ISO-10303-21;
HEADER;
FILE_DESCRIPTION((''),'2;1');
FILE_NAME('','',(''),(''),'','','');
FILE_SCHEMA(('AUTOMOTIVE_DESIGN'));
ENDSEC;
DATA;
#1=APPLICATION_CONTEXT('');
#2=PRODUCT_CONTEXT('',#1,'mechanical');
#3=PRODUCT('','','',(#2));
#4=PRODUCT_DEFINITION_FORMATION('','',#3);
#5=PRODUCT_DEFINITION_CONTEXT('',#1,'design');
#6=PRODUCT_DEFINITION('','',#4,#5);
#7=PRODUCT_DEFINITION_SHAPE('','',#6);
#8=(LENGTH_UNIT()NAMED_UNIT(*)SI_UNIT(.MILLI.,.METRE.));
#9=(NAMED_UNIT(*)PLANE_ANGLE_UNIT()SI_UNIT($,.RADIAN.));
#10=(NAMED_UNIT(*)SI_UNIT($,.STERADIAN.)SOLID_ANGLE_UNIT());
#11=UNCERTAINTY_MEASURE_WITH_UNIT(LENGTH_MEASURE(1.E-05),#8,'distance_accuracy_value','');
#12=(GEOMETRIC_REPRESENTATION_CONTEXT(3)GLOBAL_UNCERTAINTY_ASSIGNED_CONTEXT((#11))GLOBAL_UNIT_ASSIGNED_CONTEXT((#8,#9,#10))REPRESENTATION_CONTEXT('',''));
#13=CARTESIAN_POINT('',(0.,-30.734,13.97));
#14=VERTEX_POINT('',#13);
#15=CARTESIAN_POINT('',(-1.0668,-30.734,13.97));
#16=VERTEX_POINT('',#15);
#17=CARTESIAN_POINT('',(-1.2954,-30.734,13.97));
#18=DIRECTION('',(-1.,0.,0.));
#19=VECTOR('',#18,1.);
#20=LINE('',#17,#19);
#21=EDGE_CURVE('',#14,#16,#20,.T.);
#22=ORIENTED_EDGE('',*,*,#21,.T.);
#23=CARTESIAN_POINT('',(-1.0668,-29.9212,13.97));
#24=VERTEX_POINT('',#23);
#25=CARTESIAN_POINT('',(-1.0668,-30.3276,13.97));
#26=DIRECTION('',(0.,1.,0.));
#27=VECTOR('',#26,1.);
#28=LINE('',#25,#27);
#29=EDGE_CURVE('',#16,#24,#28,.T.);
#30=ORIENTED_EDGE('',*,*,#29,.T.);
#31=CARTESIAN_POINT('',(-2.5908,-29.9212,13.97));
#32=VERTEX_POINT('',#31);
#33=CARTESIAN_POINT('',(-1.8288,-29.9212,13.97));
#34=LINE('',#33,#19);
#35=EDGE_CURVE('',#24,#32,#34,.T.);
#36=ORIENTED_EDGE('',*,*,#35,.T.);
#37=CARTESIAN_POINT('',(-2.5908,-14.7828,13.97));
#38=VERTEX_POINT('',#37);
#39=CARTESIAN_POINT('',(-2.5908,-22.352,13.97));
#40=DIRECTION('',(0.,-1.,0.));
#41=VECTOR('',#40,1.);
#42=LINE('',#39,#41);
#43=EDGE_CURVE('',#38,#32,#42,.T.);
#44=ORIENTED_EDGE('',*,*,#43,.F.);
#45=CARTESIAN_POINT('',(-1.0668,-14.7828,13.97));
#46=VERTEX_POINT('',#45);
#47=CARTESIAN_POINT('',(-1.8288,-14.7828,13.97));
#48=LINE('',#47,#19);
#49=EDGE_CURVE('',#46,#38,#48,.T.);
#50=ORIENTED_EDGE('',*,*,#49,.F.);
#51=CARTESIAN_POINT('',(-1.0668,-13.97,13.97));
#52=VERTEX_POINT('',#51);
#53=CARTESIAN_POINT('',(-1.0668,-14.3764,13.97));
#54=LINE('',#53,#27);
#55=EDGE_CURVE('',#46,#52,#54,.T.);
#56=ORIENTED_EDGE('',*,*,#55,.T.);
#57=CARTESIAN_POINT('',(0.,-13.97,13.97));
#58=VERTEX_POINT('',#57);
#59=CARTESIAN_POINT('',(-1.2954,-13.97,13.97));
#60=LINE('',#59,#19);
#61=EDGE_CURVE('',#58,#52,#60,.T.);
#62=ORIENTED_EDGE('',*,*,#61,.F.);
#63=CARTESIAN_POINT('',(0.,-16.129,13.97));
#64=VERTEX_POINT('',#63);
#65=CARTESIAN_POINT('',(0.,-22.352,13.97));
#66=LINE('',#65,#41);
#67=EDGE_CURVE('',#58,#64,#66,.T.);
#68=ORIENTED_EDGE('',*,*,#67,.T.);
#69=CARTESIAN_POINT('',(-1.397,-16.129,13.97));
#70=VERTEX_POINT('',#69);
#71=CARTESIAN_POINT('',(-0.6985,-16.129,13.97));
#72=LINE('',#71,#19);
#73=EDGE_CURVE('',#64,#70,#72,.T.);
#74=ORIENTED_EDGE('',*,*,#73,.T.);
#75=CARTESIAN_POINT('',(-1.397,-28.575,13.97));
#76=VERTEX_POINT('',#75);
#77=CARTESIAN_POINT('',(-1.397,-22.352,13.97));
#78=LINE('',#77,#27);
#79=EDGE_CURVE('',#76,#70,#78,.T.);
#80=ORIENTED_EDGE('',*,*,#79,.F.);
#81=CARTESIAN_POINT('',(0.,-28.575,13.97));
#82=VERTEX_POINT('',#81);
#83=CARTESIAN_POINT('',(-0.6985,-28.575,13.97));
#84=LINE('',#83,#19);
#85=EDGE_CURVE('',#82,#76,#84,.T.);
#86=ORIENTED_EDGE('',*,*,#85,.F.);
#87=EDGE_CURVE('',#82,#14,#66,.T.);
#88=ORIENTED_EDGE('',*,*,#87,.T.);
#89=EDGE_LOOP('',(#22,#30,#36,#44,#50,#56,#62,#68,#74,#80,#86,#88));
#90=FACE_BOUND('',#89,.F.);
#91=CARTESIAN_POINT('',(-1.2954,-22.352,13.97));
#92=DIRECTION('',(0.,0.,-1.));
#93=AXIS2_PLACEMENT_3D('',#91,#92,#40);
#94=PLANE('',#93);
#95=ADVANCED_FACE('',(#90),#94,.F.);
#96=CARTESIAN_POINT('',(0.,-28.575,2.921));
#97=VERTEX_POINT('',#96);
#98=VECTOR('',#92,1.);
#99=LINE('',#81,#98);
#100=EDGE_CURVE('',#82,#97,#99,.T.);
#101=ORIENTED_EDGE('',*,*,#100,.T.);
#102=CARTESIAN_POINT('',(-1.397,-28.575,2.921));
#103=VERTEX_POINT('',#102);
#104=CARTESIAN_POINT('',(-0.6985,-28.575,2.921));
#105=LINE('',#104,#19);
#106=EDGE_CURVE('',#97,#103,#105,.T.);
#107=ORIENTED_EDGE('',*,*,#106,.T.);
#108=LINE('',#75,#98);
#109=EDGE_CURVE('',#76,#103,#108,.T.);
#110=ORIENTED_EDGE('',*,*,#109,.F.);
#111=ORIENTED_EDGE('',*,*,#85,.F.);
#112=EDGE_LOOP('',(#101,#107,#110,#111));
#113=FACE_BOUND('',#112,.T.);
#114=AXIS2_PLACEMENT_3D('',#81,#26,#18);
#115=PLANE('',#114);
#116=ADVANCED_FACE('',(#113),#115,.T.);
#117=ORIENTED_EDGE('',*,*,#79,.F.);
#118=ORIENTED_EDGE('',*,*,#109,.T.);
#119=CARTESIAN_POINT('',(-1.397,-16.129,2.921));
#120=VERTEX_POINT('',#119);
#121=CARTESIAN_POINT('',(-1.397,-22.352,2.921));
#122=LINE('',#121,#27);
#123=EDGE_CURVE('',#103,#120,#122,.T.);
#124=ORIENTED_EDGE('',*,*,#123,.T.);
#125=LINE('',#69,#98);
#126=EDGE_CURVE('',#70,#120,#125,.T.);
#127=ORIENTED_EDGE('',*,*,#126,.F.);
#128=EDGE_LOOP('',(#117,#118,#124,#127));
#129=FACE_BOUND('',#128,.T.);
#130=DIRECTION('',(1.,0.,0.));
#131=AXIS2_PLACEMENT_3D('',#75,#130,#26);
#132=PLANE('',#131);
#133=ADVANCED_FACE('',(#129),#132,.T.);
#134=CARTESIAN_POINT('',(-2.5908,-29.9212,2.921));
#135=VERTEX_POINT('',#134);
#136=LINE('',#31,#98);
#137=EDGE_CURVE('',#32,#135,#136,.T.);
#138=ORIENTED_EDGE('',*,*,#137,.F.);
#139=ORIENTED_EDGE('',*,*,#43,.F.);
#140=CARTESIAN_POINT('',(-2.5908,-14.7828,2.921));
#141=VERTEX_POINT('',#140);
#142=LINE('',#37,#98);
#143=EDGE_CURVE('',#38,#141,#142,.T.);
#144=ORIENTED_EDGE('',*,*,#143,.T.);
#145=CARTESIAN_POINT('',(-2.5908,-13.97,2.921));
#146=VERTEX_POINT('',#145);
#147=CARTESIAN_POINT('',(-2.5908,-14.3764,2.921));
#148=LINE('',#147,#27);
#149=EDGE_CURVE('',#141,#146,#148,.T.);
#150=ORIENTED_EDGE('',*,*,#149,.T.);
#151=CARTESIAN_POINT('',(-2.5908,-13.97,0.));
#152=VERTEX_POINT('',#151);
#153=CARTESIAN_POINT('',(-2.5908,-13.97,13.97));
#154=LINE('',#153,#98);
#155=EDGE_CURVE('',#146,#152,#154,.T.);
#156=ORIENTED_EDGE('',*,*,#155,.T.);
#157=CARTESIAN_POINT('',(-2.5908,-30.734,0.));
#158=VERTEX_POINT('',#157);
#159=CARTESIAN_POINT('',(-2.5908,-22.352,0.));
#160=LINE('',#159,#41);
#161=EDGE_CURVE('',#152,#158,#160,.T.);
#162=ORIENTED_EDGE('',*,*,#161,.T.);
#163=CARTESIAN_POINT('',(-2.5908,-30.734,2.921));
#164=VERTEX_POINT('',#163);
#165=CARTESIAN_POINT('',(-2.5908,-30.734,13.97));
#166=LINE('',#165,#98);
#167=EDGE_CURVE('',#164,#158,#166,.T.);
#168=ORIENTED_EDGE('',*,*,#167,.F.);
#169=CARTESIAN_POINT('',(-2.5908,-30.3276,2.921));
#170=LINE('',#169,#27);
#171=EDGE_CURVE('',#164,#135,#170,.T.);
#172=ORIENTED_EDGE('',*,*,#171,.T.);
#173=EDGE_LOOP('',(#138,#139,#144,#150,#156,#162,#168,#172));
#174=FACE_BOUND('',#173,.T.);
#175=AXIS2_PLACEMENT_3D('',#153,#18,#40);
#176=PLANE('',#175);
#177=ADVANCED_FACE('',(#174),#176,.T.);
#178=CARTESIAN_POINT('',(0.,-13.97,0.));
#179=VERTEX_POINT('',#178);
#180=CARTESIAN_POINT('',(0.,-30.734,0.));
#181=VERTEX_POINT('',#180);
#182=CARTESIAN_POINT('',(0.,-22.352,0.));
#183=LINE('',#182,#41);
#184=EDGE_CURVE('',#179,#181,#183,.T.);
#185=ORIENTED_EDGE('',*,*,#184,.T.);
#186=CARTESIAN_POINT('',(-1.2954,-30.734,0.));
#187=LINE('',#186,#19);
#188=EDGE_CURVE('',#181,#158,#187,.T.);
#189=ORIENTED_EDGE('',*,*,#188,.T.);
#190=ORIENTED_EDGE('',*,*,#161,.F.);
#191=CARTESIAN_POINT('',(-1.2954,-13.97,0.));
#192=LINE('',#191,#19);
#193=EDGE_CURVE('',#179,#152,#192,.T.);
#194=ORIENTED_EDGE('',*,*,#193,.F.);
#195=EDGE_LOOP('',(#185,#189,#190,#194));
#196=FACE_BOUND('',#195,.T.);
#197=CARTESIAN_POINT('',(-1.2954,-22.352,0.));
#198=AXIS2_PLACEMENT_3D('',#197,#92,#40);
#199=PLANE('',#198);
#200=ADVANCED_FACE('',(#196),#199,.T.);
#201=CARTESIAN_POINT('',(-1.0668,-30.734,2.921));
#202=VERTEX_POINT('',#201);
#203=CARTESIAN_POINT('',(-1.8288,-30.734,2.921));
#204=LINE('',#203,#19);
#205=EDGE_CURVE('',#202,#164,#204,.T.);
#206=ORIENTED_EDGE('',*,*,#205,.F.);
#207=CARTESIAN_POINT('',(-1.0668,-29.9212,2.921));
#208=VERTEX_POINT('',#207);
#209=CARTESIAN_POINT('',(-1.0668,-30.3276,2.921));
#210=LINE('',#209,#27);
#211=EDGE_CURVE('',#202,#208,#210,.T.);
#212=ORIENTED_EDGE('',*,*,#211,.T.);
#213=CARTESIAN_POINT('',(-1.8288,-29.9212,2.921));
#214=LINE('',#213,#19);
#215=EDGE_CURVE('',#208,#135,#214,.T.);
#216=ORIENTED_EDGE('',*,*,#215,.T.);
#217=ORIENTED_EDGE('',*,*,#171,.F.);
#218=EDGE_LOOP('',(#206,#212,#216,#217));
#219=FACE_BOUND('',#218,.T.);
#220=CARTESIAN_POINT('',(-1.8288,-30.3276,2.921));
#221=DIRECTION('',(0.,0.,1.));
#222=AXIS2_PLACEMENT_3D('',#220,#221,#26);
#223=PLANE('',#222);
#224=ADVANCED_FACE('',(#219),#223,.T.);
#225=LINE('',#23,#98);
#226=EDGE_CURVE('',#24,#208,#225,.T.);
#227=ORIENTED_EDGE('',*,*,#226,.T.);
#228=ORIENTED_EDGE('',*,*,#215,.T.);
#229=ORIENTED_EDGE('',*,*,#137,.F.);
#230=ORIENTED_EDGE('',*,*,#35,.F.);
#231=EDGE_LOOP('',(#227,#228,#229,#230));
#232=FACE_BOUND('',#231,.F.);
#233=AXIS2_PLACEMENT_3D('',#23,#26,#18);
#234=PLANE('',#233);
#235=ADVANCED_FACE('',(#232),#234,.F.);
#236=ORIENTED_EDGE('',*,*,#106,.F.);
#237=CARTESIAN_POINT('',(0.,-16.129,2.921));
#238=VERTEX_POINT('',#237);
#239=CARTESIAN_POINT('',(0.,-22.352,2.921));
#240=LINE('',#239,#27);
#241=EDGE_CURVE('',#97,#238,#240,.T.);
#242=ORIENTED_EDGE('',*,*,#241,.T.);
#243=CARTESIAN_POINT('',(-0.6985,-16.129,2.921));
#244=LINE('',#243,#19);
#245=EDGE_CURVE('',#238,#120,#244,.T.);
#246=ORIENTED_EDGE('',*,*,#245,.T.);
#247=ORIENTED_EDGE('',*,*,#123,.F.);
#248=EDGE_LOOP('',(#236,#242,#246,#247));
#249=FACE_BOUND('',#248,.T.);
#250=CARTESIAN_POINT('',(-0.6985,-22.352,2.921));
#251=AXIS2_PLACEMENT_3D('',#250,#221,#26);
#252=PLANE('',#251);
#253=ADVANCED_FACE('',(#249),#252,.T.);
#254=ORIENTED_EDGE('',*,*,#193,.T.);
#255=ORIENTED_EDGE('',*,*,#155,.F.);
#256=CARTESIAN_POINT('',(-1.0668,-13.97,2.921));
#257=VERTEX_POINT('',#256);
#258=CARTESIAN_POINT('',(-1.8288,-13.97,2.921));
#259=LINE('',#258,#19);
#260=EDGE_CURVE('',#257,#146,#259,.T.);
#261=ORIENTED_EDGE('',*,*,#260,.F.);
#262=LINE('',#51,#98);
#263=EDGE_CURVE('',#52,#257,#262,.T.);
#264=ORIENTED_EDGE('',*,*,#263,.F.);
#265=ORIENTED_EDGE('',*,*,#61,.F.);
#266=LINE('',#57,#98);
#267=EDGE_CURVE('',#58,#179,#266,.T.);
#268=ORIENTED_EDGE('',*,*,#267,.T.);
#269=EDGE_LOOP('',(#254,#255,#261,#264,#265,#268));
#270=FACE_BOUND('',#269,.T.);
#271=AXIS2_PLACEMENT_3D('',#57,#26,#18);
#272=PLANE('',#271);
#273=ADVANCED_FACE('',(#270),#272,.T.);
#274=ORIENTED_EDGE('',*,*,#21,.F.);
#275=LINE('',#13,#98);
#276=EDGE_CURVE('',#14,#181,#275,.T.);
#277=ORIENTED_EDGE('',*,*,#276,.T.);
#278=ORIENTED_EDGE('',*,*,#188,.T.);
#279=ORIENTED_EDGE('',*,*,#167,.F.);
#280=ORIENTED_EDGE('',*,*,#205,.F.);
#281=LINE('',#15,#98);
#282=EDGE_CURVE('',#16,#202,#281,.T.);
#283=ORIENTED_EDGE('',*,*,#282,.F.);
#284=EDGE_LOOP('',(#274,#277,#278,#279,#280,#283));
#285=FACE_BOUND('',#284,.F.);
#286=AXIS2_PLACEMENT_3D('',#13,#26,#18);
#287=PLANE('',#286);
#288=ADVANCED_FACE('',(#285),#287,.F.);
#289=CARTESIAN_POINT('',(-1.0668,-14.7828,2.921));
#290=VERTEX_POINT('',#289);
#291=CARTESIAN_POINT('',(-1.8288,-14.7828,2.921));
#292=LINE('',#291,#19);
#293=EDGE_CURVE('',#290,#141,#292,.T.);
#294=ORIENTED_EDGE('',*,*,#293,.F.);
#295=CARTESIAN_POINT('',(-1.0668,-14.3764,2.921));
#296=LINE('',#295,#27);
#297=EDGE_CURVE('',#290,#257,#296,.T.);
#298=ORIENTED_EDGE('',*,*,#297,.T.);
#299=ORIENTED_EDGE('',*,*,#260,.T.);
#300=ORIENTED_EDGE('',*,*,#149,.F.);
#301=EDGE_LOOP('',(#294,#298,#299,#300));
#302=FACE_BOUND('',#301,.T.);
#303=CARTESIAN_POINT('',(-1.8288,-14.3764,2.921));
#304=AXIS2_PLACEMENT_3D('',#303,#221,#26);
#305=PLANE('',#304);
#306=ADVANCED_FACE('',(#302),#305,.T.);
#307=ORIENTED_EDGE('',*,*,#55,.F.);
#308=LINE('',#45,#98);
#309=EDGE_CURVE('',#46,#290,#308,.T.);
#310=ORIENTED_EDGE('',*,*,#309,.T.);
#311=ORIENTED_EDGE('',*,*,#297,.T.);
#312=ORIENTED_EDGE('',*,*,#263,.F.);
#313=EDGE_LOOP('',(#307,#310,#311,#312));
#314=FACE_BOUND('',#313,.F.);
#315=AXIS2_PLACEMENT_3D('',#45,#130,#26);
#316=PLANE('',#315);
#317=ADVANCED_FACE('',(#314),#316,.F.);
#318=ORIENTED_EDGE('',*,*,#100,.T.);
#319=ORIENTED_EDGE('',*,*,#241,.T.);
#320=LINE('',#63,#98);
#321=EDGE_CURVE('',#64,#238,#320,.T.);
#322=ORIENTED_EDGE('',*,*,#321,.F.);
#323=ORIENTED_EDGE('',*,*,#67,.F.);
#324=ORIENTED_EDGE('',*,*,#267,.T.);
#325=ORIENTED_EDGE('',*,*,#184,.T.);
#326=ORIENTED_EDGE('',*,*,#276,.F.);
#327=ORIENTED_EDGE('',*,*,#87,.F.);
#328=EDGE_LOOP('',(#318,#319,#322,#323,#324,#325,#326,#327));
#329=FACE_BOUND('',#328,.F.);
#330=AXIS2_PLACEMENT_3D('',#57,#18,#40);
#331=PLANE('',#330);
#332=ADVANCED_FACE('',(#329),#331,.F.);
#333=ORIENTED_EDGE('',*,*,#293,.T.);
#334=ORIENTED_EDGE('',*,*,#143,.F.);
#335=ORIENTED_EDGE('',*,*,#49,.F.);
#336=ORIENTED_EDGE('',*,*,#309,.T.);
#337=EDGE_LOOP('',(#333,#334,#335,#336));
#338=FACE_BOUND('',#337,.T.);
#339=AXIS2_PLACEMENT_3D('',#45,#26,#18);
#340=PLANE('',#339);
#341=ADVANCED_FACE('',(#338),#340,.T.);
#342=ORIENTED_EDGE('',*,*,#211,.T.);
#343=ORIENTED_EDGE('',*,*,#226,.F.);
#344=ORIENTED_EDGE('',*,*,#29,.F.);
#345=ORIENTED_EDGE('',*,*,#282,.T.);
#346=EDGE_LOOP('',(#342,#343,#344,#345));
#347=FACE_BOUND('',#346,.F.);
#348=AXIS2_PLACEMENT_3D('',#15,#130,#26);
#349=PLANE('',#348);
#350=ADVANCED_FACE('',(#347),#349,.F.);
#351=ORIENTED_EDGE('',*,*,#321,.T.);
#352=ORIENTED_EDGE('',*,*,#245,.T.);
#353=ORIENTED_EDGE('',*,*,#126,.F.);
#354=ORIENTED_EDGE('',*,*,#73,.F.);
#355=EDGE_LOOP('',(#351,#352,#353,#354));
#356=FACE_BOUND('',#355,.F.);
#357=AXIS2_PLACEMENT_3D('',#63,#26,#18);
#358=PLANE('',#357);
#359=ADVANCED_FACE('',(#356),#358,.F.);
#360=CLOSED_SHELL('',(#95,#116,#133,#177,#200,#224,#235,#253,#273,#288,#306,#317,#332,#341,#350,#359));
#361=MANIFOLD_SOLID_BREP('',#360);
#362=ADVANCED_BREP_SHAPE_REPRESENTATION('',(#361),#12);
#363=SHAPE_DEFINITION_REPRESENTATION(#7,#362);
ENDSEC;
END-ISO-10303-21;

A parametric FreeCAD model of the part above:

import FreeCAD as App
import Part
import Sketcher

V = App.Vector
Q = App.Units.Quantity


def add_polygon(sketch, points):
    """Adds a closed chain of lines whose ends are joined by coincident constraints."""
    first, n = sketch.GeometryCount, len(points)
    for a, b in zip(points, points[1:] + points[:1]):
        sketch.addGeometry(Part.LineSegment(App.Vector(*a, 0), App.Vector(*b, 0)), False)
    for i in range(n):
        sketch.addConstraint(Sketcher.Constraint("Coincident", first + i, 2, first + (i + 1) % n, 1))

doc = App.newDocument("Part")
params = doc.addObject("Spreadsheet::Sheet", "Params")
for row, (alias, value) in enumerate([
    ("sketch1_width", "0.66 in"),
    ("sketch1_height", "0.102 in"),
    ("pad1_length", "0.55 in"),
    ("sketch2_width", "0.49 in"),
    ("sketch2_height", "0.06 in"),
    ("sketch2_width2", "0.032 in"),
    ("sketch2_height2", "0.055 in"),
    ("pocket1_length", "0.435 in"),
], start=1):
    params.set(f"A{row}", alias)
    params.set(f"B{row}", "=" + value)
    params.setAlias(f"B{row}", alias)

body = doc.addObject("PartDesign::Body", "Body")

# Sketch on XZ plane
sketch1 = body.newObject("Sketcher::SketchObject", "Sketch")
sketch1.AttachmentSupport = (doc.getObject("XZ_Plane"), [""])
sketch1.MapMode = "FlatFace"
add_polygon(sketch1, [(0, 2.6), (0, 0), (16.8, 0), (16.8, 2.6)])  # lines 0-3
sketch1.addConstraint([
    Sketcher.Constraint("Vertical", 0),
    Sketcher.Constraint("Horizontal", 1),
    Sketcher.Constraint("Vertical", 2),
    Sketcher.Constraint("Horizontal", 3),
    Sketcher.Constraint("Coincident", 0, 2, -1, 1),
    Sketcher.Constraint("DistanceX", 1, 1, 1, 2, Q("0.66 in")),
    Sketcher.Constraint("DistanceY", 0, 2, 0, 1, Q("0.102 in")),
])
sketch1.setExpression("Constraints[9]", "Params.sketch1_width")
sketch1.setExpression("Constraints[10]", "Params.sketch1_height")
pad1 = body.newObject("PartDesign::Pad", "Pad")
pad1.Profile = sketch1
pad1.setExpression("Length", "Params.pad1_length")

# Sketch on XZ plane
sketch2 = body.newObject("Sketcher::SketchObject", "Sketch001")
sketch2.AttachmentSupport = (doc.getObject("XZ_Plane"), [""])
sketch2.MapMode = "FlatFace"
add_polygon(sketch2, [(16.8, 2.6), (16.8, 1.1), (16, 1.1), (16, 2.6)])  # lines 0-3
add_polygon(sketch2, [(0.8, 2.6), (0.8, 1.1), (0, 1.1), (0, 2.6)])  # lines 4-7
add_polygon(sketch2, [(14.6, 1.4), (14.6, 0), (2.2, 0), (2.2, 1.4)])  # lines 8-11
sketch2.addConstraint([
    Sketcher.Constraint("Vertical", 0),
    Sketcher.Constraint("Horizontal", 1),
    Sketcher.Constraint("Vertical", 2),
    Sketcher.Constraint("Horizontal", 3),
    Sketcher.Constraint("Vertical", 4),
    Sketcher.Constraint("Horizontal", 5),
    Sketcher.Constraint("Vertical", 6),
    Sketcher.Constraint("Horizontal", 7),
    Sketcher.Constraint("Vertical", 8),
    Sketcher.Constraint("Horizontal", 9),
    Sketcher.Constraint("Vertical", 10),
    Sketcher.Constraint("Horizontal", 11),
    Sketcher.Constraint("PointOnObject", 5, 2, -2),
    Sketcher.Constraint("PointOnObject", 8, 2, -1),
    Sketcher.Constraint("Horizontal", 1, 2, 4, 2),
    Sketcher.Constraint("Horizontal", 3, 2, 6, 2),
    Sketcher.Constraint("Equal", 3, 5),
    Sketcher.Constraint("DistanceX", 9, 2, 9, 1, Q("0.49 in")),
    Sketcher.Constraint("DistanceY", 0, 2, 0, 1, Q("0.06 in")),
    Sketcher.Constraint("DistanceX", 1, 2, 1, 1, Q("0.032 in")),
    Sketcher.Constraint("DistanceY", 8, 2, 8, 1, Q("0.055 in")),
    Sketcher.Constraint("DistanceX", -1, 1, 0, 2, Q("0.66 in")),
    Sketcher.Constraint("DistanceY", -1, 1, 0, 2, Q("0.042 in")),
    Sketcher.Constraint("DistanceX", -1, 1, 8, 2, Q("0.575 in")),
])
sketch2.setExpression("Constraints[29]", "Params.sketch2_width")
sketch2.setExpression("Constraints[30]", "Params.sketch2_height")
sketch2.setExpression("Constraints[31]", "Params.sketch2_width2")
sketch2.setExpression("Constraints[32]", "Params.sketch2_height2")
pocket1 = body.newObject("PartDesign::Pocket", "Pocket")
pocket1.Profile = sketch2
pocket1.setExpression("Length", "Params.pocket1_length")
pocket1.Reversed = True
body2 = doc.addObject("PartDesign::Body", "Body001")
doc.recompute()

body.Placement = App.Placement(V(13.97, -13.97, 0), App.Rotation(V(0, 0, 1), 270))
boolean = body2.newObject("PartDesign::Boolean", "Boolean")
boolean.Type = "Fuse"
boolean.addObjects([body])
body3 = doc.addObject("PartDesign::Body", "Body002")
doc.recompute()

body2.Placement = App.Placement(V(0, 0, 0), App.Rotation(V(0, -1, 0), 90))
boolean2 = body3.newObject("PartDesign::Boolean", "Boolean001")
boolean2.Type = "Fuse"
boolean2.addObjects([body2])

doc.recompute()
